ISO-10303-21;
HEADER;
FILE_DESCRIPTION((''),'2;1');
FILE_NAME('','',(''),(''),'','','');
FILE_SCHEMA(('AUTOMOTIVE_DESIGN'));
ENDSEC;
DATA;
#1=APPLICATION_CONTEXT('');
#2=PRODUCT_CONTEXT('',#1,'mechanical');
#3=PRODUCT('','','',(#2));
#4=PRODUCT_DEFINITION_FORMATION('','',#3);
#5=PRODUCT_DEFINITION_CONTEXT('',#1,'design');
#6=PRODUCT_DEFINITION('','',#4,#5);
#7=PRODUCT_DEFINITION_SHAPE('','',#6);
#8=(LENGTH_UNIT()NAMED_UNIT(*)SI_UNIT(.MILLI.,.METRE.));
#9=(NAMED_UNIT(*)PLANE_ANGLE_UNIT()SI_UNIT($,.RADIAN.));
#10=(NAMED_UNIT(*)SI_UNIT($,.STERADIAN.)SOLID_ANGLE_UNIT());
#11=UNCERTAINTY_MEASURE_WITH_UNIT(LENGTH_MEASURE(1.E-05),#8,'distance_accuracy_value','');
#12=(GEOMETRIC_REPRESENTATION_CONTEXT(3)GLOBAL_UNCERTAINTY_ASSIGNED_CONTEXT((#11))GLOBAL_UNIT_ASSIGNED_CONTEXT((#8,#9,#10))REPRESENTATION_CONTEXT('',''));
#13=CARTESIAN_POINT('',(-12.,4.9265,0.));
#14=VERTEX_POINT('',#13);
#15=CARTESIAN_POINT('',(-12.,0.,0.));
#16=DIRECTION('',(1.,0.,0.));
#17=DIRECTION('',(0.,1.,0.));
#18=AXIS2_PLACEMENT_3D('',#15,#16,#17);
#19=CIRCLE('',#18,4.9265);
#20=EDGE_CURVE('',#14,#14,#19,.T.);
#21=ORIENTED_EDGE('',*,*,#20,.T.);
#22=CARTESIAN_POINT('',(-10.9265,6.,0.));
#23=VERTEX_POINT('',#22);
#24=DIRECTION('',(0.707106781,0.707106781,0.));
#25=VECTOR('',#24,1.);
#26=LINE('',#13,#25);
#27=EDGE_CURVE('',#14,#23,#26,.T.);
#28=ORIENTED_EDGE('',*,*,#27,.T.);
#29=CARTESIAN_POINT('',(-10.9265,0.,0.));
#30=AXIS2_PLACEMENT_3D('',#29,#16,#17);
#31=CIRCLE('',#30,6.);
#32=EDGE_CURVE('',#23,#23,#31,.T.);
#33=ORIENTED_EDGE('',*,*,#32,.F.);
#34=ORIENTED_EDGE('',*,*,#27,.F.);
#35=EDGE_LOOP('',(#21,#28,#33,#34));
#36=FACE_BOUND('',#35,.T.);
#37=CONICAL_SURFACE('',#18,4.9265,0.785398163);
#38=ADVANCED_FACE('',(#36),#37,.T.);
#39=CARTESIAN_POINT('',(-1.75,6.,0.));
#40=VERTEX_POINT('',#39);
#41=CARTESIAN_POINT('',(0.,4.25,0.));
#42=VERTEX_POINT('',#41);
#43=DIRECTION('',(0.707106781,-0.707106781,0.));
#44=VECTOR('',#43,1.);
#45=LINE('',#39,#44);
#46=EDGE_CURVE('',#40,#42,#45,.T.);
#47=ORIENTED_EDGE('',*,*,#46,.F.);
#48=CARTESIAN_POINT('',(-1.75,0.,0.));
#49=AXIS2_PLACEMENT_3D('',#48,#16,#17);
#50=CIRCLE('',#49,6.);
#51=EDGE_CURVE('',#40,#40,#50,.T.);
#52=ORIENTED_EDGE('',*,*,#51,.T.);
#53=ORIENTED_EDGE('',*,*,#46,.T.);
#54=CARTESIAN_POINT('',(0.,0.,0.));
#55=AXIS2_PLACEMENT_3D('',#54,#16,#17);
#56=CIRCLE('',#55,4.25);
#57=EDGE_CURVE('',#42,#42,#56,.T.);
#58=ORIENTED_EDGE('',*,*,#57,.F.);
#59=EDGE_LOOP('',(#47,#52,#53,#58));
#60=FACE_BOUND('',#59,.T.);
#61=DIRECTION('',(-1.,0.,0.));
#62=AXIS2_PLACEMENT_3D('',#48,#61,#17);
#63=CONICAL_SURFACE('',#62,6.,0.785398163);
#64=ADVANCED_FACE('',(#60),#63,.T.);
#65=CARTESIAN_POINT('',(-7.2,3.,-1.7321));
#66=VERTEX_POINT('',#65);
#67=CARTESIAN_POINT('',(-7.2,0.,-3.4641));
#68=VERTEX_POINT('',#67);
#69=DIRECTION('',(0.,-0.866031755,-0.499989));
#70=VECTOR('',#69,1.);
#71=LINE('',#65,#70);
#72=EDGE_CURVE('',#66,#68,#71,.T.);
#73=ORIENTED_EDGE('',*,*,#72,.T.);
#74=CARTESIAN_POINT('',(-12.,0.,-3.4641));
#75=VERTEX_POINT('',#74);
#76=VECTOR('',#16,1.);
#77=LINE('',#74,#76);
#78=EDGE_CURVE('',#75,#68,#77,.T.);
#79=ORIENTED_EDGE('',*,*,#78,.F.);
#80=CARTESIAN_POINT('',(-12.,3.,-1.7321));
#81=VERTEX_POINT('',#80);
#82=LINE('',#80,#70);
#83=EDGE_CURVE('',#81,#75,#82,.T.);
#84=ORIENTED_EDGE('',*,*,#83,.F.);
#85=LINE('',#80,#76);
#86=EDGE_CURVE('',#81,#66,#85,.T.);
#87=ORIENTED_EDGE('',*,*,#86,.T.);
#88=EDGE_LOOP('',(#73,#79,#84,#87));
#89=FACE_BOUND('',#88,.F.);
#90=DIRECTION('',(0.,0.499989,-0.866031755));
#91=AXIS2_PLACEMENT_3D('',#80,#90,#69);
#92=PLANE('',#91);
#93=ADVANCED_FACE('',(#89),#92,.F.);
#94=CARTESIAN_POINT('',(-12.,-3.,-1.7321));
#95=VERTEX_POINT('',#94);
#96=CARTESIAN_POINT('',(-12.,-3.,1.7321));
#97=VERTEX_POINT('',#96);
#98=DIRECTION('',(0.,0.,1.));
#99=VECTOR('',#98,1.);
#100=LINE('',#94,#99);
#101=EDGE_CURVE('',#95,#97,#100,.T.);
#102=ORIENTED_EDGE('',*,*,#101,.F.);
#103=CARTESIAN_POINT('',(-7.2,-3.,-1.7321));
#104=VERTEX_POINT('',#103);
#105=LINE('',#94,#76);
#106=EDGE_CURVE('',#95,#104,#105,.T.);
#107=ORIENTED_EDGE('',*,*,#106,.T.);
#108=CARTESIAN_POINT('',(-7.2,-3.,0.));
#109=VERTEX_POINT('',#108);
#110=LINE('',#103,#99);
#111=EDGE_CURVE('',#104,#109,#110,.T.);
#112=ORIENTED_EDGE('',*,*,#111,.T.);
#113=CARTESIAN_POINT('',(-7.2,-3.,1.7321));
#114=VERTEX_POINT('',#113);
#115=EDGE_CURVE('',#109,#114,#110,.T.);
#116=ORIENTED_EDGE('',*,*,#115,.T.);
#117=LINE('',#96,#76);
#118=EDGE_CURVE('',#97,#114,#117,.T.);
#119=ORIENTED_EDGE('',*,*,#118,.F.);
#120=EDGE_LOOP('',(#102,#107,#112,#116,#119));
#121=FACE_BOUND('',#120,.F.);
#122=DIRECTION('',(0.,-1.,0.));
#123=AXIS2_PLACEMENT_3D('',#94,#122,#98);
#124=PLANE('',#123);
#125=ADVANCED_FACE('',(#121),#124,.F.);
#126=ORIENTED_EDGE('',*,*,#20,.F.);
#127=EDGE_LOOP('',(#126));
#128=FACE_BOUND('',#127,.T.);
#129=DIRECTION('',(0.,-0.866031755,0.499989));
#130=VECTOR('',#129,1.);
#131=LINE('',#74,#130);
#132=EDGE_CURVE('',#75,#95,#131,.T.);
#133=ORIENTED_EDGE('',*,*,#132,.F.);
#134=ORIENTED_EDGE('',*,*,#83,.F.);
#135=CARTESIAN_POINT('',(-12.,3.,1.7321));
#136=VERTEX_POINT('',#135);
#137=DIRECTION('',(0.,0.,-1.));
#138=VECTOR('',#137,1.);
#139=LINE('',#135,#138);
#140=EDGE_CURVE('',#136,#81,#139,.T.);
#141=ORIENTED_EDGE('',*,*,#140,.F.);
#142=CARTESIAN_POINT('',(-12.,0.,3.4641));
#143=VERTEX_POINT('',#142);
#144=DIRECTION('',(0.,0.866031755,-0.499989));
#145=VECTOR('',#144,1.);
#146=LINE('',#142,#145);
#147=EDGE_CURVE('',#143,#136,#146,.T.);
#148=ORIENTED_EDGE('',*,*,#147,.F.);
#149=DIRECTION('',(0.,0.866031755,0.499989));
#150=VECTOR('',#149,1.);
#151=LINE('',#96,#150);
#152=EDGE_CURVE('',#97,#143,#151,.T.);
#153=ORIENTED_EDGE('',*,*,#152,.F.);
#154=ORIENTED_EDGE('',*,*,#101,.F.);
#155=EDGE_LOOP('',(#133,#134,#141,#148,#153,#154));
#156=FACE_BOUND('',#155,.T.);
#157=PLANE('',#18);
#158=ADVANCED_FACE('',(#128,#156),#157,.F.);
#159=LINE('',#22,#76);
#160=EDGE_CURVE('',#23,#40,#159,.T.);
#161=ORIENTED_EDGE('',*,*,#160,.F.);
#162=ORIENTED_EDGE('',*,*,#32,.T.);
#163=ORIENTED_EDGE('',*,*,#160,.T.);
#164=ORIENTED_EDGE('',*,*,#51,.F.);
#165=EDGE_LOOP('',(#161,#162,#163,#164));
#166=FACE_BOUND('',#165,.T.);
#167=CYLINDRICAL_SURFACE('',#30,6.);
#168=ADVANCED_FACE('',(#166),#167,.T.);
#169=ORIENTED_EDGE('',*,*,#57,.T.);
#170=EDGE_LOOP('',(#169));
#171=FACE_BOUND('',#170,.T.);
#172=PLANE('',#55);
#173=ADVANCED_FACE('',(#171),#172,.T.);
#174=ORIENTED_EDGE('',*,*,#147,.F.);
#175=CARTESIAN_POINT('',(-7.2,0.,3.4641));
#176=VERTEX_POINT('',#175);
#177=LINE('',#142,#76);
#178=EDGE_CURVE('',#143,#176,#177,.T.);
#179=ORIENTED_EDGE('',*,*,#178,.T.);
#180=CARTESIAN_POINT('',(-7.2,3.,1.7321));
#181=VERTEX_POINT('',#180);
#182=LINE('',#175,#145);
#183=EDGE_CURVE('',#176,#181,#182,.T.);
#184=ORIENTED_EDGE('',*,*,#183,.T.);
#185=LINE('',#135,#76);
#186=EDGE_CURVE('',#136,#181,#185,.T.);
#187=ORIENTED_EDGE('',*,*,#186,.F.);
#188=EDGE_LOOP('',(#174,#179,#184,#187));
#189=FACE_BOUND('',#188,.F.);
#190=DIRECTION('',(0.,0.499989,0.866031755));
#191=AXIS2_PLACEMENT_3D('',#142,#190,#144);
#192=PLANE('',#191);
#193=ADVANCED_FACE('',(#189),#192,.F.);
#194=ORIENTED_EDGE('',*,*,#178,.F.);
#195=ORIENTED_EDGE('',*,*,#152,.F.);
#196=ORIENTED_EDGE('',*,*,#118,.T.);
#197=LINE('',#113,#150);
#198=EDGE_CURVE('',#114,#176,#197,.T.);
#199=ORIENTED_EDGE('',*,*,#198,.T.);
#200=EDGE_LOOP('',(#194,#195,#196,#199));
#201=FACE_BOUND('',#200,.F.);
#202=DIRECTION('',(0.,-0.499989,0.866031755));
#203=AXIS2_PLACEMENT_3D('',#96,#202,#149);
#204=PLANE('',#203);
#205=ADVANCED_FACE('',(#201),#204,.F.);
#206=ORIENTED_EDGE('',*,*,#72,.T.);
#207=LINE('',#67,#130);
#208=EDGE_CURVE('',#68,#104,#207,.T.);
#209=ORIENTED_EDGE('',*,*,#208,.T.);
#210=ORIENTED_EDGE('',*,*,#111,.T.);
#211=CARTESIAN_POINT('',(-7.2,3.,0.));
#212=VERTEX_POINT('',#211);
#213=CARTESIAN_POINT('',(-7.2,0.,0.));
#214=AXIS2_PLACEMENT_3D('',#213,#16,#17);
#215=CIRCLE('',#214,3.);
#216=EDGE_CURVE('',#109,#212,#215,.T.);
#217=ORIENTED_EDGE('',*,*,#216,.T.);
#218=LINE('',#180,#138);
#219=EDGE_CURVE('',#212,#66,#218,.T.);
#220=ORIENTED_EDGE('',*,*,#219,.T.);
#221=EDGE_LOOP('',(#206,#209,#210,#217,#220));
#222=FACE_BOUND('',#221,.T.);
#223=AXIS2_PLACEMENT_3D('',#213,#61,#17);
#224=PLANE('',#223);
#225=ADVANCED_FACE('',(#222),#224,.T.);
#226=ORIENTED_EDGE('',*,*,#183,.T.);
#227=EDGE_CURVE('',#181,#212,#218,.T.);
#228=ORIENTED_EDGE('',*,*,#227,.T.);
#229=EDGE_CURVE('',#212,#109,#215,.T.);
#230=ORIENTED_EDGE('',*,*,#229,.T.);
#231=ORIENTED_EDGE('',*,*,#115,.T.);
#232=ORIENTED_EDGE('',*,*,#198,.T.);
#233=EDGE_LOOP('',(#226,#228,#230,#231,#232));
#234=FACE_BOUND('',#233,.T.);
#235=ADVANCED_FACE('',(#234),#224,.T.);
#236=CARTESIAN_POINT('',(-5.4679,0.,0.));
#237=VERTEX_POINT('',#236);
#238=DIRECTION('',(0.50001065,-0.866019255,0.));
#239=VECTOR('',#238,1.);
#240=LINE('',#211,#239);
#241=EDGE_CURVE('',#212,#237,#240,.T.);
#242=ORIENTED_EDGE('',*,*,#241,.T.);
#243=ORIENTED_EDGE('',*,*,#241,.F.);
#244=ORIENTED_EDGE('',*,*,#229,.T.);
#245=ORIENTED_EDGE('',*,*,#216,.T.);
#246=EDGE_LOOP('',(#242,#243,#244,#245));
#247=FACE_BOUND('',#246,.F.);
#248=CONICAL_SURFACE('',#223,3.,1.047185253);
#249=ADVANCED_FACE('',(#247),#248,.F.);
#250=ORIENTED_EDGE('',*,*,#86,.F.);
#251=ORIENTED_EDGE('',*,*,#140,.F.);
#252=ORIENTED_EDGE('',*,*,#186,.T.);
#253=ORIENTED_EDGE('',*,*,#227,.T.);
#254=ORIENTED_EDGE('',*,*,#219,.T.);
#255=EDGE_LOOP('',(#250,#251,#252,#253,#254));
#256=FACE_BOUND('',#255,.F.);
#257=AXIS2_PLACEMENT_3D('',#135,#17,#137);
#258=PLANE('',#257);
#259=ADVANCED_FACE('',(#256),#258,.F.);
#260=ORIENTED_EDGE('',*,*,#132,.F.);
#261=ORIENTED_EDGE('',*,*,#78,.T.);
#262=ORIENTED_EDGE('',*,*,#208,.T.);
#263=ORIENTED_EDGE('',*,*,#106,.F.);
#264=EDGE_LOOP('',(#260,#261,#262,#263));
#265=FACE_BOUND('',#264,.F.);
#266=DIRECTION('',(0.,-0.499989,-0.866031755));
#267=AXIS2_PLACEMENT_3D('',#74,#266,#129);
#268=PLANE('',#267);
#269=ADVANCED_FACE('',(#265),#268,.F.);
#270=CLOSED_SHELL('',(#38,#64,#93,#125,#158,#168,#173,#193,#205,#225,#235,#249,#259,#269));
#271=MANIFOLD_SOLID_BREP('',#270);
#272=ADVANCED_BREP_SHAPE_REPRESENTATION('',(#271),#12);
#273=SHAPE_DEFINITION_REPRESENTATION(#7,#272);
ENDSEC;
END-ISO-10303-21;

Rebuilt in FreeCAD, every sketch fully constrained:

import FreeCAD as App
import Part
import Sketcher

V = App.Vector
Q = App.Units.Quantity


def add_polygon(sketch, points):
    """Adds a closed chain of lines whose ends are joined by coincident constraints."""
    first, n = sketch.GeometryCount, len(points)
    for a, b in zip(points, points[1:] + points[:1]):
        sketch.addGeometry(Part.LineSegment(App.Vector(*a, 0), App.Vector(*b, 0)), False)
    for i in range(n):
        sketch.addConstraint(Sketcher.Constraint("Coincident", first + i, 2, first + (i + 1) % n, 1))

doc = App.newDocument("Part")
body = doc.addObject("PartDesign::Body", "Body")

sketch1 = body.newObject("Sketcher::SketchObject", "Sketch")
sketch1.AttachmentSupport = (doc.getObject("XY_Plane"), [""])
sketch1.MapMode = "FlatFace"
add_polygon(sketch1, [(-12, 0), (0, 0), (0, 4.25), (-1.75, 6), (-10.9265, 6), (-12, 4.9265)])
sketch1.addConstraint(Sketcher.Constraint("Horizontal", 0))
sketch1.addConstraint(Sketcher.Constraint("Vertical", 1))
sketch1.addConstraint(Sketcher.Constraint("Horizontal", 3))
sketch1.addConstraint(Sketcher.Constraint("Vertical", 5))
sketch1.addConstraint(Sketcher.Constraint("Coincident", 0, 2, -1, 1))
sketch1.addConstraint(Sketcher.Constraint("Perpendicular", 2, 4))
sketch1.addConstraint(Sketcher.Constraint("DistanceX", 0, 1, 0, 2, Q("12 mm")))
sketch1.addConstraint(Sketcher.Constraint("Angle", 2, Q("135 deg")))
sketch1.addConstraint(Sketcher.Constraint("DistanceY", -1, 1, 2, 2, Q("6 mm")))
sketch1.addConstraint(Sketcher.Constraint("DistanceY", 1, 1, 1, 2, Q("4.25 mm")))
sketch1.addConstraint(Sketcher.Constraint("DistanceX", 3, 2, 3, 1, Q("9.1765 mm")))
revolution = body.newObject("PartDesign::Revolution", "Revolution")
revolution.Profile = sketch1
revolution.ReferenceAxis = (sketch1, ["H_Axis"])
revolution.Angle = 360

sketch2 = body.newObject("Sketcher::SketchObject", "Sketch001")
sketch2.AttachmentSupport = (doc.getObject("YZ_Plane"), [""])
sketch2.MapMode = "FlatFace"
sketch2.AttachmentOffset = App.Placement(V(0, 0, -12), App.Rotation())
add_polygon(sketch2, [(-3, -1.7321), (-3, 1.7321), (0, 3.4641), (3, 1.7321), (3, -1.7321), (0, -3.4641)])
sketch2.addConstraint(Sketcher.Constraint("Vertical", 0))
sketch2.addConstraint(Sketcher.Constraint("Vertical", 3))
sketch2.addConstraint(Sketcher.Constraint("Symmetric", 0, 2, 3, 2, -1, 1))
sketch2.addConstraint(Sketcher.Constraint("Symmetric", 1, 2, 4, 2, -1, 1))
sketch2.addConstraint(Sketcher.Constraint("PointOnObject", 1, 2, -2))
sketch2.addConstraint(Sketcher.Constraint("Parallel", 2, 5))
sketch2.addConstraint(Sketcher.Constraint("Horizontal", 0, 2, 2, 2))
sketch2.addConstraint(Sketcher.Constraint("Angle", 1, Q("29.9993 deg")))
sketch2.addConstraint(Sketcher.Constraint("DistanceX", 0, 2, -1, 1, Q("3 mm")))
sketch2.addConstraint(Sketcher.Constraint("DistanceY", 0, 1, 0, 2, Q("3.4642 mm")))
pocket1 = body.newObject("PartDesign::Pocket", "Pocket")
pocket1.Profile = sketch2
pocket1.Length = 4.8
pocket1.Reversed = True

sketch3 = body.newObject("Sketcher::SketchObject", "Sketch002")
sketch3.AttachmentSupport = (doc.getObject("XY_Plane"), [""])
sketch3.MapMode = "FlatFace"
add_polygon(sketch3, [(-7.2, 0), (-5.4679, 0), (-7.2, 3)])
sketch3.addConstraint(Sketcher.Constraint("Horizontal", 0))
sketch3.addConstraint(Sketcher.Constraint("Vertical", 2))
sketch3.addConstraint(Sketcher.Constraint("PointOnObject", 0, 2, -1))
sketch3.addConstraint(Sketcher.Constraint("DistanceY", 2, 2, 2, 1, Q("3 mm")))
sketch3.addConstraint(Sketcher.Constraint("Angle", 1, Q("120.0007 deg")))
sketch3.addConstraint(Sketcher.Constraint("DistanceX", 1, 2, -1, 1, Q("7.2 mm")))
groove = body.newObject("PartDesign::Groove", "Groove")
groove.Profile = sketch3
groove.ReferenceAxis = (sketch3, ["H_Axis"])
groove.Angle = 360

doc.recompute()
